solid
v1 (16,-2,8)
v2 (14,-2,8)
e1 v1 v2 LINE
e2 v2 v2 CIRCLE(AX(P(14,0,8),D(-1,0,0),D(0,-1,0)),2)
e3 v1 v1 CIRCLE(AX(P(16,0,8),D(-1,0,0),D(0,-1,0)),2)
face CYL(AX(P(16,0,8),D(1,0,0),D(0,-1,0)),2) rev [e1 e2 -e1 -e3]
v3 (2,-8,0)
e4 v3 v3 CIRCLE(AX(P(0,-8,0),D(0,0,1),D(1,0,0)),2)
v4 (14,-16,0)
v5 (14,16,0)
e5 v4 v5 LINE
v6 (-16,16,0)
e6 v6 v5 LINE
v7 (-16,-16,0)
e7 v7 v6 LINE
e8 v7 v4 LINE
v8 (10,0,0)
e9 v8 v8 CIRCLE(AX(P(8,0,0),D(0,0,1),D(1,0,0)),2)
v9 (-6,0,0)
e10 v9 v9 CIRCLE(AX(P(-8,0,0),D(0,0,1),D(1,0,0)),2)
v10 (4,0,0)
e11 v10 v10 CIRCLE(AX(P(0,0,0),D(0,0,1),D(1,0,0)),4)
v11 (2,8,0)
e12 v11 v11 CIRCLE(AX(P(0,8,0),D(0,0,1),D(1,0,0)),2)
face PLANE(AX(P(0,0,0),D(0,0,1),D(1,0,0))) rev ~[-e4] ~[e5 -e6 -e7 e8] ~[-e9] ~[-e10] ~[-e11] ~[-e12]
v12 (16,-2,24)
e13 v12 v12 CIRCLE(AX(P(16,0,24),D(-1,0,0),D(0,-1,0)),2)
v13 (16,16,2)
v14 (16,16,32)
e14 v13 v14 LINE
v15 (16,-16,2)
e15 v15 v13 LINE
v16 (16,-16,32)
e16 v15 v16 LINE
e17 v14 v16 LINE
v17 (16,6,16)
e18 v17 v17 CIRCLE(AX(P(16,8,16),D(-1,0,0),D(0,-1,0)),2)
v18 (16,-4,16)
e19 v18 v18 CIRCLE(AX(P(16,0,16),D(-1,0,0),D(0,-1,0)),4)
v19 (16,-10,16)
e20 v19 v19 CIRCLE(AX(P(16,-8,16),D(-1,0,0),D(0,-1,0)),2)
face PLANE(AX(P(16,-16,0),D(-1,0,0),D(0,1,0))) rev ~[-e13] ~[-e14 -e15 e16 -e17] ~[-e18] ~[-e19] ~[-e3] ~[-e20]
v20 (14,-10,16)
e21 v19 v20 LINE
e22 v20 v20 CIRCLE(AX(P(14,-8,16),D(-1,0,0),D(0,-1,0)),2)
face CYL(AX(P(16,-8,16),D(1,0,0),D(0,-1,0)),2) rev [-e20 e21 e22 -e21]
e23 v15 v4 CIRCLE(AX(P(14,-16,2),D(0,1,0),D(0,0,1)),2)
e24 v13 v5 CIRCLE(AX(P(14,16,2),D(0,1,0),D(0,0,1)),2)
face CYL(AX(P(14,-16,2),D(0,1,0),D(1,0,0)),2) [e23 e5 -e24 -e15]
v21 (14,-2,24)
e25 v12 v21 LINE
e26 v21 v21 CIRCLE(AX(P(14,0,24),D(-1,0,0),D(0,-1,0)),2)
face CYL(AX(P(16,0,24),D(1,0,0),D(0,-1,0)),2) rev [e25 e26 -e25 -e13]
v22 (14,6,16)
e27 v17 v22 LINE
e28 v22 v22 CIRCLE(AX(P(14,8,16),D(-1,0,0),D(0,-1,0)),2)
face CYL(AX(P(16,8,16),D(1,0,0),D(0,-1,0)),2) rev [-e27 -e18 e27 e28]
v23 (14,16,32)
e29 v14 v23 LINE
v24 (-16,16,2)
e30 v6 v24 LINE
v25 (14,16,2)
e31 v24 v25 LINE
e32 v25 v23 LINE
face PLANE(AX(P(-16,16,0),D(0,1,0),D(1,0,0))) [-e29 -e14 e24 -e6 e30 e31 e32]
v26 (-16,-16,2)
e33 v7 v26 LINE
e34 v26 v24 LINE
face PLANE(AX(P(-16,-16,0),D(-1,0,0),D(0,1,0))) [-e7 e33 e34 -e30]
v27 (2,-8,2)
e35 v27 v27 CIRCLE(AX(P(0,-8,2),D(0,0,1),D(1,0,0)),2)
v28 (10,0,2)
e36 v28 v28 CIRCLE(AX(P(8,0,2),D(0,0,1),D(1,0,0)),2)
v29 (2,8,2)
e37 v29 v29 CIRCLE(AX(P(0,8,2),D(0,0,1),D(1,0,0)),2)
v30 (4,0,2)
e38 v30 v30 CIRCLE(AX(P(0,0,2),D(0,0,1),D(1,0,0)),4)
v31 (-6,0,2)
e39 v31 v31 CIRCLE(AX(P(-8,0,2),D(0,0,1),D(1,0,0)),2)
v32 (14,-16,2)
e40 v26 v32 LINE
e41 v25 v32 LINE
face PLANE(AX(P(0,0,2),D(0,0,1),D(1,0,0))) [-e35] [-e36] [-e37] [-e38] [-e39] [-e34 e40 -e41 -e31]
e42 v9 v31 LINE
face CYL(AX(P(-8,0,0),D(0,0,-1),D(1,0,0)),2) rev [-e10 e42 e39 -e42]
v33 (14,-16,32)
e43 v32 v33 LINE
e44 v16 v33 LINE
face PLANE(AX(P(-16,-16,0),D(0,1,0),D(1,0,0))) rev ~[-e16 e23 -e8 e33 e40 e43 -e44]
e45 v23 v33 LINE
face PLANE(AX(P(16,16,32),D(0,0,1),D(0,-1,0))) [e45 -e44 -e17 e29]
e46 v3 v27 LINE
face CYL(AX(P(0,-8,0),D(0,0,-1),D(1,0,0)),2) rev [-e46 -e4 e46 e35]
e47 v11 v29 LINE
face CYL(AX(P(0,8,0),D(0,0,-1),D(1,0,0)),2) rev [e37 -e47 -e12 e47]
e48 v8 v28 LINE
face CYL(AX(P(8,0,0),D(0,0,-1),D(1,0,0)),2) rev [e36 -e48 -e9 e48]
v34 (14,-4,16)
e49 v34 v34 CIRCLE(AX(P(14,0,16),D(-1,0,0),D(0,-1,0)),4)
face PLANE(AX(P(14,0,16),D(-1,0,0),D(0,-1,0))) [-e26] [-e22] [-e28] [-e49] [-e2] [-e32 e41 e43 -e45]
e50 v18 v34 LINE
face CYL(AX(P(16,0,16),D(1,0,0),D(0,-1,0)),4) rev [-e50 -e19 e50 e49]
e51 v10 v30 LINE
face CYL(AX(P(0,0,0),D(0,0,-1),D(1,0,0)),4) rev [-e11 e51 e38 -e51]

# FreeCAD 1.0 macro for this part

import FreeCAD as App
import Part
import Sketcher

V = App.Vector


def edges_at(feature, points):
    """Names of the edges that pass closest to the given points."""
    edges = feature.Shape.Edges
    near = lambda p: min(range(len(edges)), key=lambda i: edges[i].distToShape(Part.Vertex(*p))[0])
    return sorted({f"Edge{near(p) + 1}" for p in points})

doc = App.newDocument("Part")
body = doc.addObject("PartDesign::Body", "Body")

sketch1 = body.newObject("Sketcher::SketchObject", "Sketch")
sketch1.AttachmentSupport = (doc.getObject("XY_Plane"), [""])
sketch1.MapMode = "FlatFace"
sketch1.addGeometry(Part.LineSegment(V(-16, 16, 0), V(-16, -16, 0)), False)
sketch1.addGeometry(Part.LineSegment(V(-16, -16, 0), V(16, -16, 0)), False)
sketch1.addGeometry(Part.LineSegment(V(16, -16, 0), V(16, 16, 0)), False)
sketch1.addGeometry(Part.LineSegment(V(16, 16, 0), V(-16, 16, 0)), False)
sketch1.addGeometry(Part.Circle(V(0, -8, 0), V(0, 0, 1), 2), False)
sketch1.addGeometry(Part.Circle(V(-8, 0, 0), V(0, 0, 1), 2), False)
sketch1.addGeometry(Part.Circle(V(0, 0, 0), V(0, 0, 1), 4), False)
sketch1.addGeometry(Part.Circle(V(8, 0, 0), V(0, 0, 1), 2), False)
sketch1.addGeometry(Part.Circle(V(0, 8, 0), V(0, 0, 1), 2), False)
sketch1.addConstraint(Sketcher.Constraint("Coincident", 0, 2, 1, 1))
sketch1.addConstraint(Sketcher.Constraint("Coincident", 1, 2, 2, 1))
sketch1.addConstraint(Sketcher.Constraint("Coincident", 2, 2, 3, 1))
sketch1.addConstraint(Sketcher.Constraint("Coincident", 3, 2, 0, 1))
sketch1.addConstraint(Sketcher.Constraint("Vertical", 0))
sketch1.addConstraint(Sketcher.Constraint("Horizontal", 1))
sketch1.addConstraint(Sketcher.Constraint("Vertical", 2))
sketch1.addConstraint(Sketcher.Constraint("Horizontal", 3))
sketch1.addConstraint(Sketcher.Constraint("Coincident", 6, 3, -1, 1))
sketch1.addConstraint(Sketcher.Constraint("Equal", 4, 5))
sketch1.addConstraint(Sketcher.Constraint("Equal", 5, 7))
sketch1.addConstraint(Sketcher.Constraint("Equal", 7, 8))
sketch1.addConstraint(Sketcher.Constraint("Symmetric", 5, 3, 7, 3, -1, 1))
sketch1.addConstraint(Sketcher.Constraint("Symmetric", 4, 3, 8, 3, -1, 1))
sketch1.addConstraint(Sketcher.Constraint("Symmetric", 0, 2, 2, 2, -1, 1))
sketch1.addConstraint(Sketcher.Constraint("PointOnObject", 4, 3, -2))
sketch1.addConstraint(Sketcher.Constraint("PointOnObject", 5, 3, -1))
sketch1.addConstraint(Sketcher.Constraint("Equal", 3, 0))
sketch1.addConstraint(Sketcher.Constraint("Diameter", 4, 4.0))
sketch1.addConstraint(Sketcher.Constraint("Diameter", 6, 8.0))
sketch1.addConstraint(Sketcher.Constraint("DistanceX", 1, 1, 1, 2, 32.0))
sketch1.addConstraint(Sketcher.Constraint("DistanceY", 4, 3, -1, 1, 8.0))
sketch1.addConstraint(Sketcher.Constraint("DistanceX", 5, 3, -1, 1, 8.0))
pad1 = body.newObject("PartDesign::Pad", "Pad")
pad1.Profile = sketch1
pad1.Length = 2

sketch2 = body.newObject("Sketcher::SketchObject", "Sketch001")
sketch2.AttachmentSupport = (doc.getObject("YZ_Plane"), [""])
sketch2.MapMode = "FlatFace"
sketch2.AttachmentOffset = App.Placement(V(0, 0, 16), App.Rotation())
sketch2.addGeometry(Part.LineSegment(V(16, 32, 0), V(16, 0, 0)), False)
sketch2.addGeometry(Part.LineSegment(V(16, 0, 0), V(-16, 0, 0)), False)
sketch2.addGeometry(Part.LineSegment(V(-16, 0, 0), V(-16, 32, 0)), False)
sketch2.addGeometry(Part.LineSegment(V(-16, 32, 0), V(16, 32, 0)), False)
sketch2.addGeometry(Part.Circle(V(0, 8, 0), V(0, 0, 1), 2), False)
sketch2.addGeometry(Part.Circle(V(8, 16, 0), V(0, 0, 1), 2), False)
sketch2.addGeometry(Part.Circle(V(0, 16, 0), V(0, 0, 1), 4), False)
sketch2.addGeometry(Part.Circle(V(-8, 16, 0), V(0, 0, 1), 2), False)
sketch2.addGeometry(Part.Circle(V(0, 24, 0), V(0, 0, 1), 2), False)
sketch2.addConstraint(Sketcher.Constraint("Coincident", 0, 2, 1, 1))
sketch2.addConstraint(Sketcher.Constraint("Coincident", 1, 2, 2, 1))
sketch2.addConstraint(Sketcher.Constraint("Coincident", 2, 2, 3, 1))
sketch2.addConstraint(Sketcher.Constraint("Coincident", 3, 2, 0, 1))
sketch2.addConstraint(Sketcher.Constraint("Vertical", 0))
sketch2.addConstraint(Sketcher.Constraint("Horizontal", 1))
sketch2.addConstraint(Sketcher.Constraint("Vertical", 2))
sketch2.addConstraint(Sketcher.Constraint("Horizontal", 3))
sketch2.addConstraint(Sketcher.Constraint("Equal", 4, 5))
sketch2.addConstraint(Sketcher.Constraint("Equal", 5, 7))
sketch2.addConstraint(Sketcher.Constraint("Equal", 7, 8))
sketch2.addConstraint(Sketcher.Constraint("Symmetric", 0, 2, 1, 2, -1, 1))
sketch2.addConstraint(Sketcher.Constraint("Symmetric", 5, 3, 7, 3, -2))
sketch2.addConstraint(Sketcher.Constraint("PointOnObject", 4, 3, -2))
sketch2.addConstraint(Sketcher.Constraint("PointOnObject", 6, 3, -2))
sketch2.addConstraint(Sketcher.Constraint("PointOnObject", 8, 3, -2))
sketch2.addConstraint(Sketcher.Constraint("Horizontal", 5, 3, 6, 3))
sketch2.addConstraint(Sketcher.Constraint("Equal", 3, 0))
sketch2.addConstraint(Sketcher.Constraint("Diameter", 4, 4.0))
sketch2.addConstraint(Sketcher.Constraint("Diameter", 6, 8.0))
sketch2.addConstraint(Sketcher.Constraint("DistanceX", 1, 2, 1, 1, 32.0))
sketch2.addConstraint(Sketcher.Constraint("DistanceY", -1, 1, 4, 3, 8.0))
sketch2.addConstraint(Sketcher.Constraint("DistanceX", -1, 1, 5, 3, 8.0))
sketch2.addConstraint(Sketcher.Constraint("DistanceY", -1, 1, 5, 3, 16.0))
sketch2.addConstraint(Sketcher.Constraint("DistanceY", -1, 1, 8, 3, 24.0))
pad2 = body.newObject("PartDesign::Pad", "Pad001")
pad2.Profile = sketch2
pad2.Length = 2
pad2.Reversed = True
doc.recompute()

fillet = body.newObject("PartDesign::Fillet", "Fillet")
fillet.Base = (pad2, edges_at(pad2, [(16, 0, 0)]))
fillet.Radius = 2

doc.recompute()
